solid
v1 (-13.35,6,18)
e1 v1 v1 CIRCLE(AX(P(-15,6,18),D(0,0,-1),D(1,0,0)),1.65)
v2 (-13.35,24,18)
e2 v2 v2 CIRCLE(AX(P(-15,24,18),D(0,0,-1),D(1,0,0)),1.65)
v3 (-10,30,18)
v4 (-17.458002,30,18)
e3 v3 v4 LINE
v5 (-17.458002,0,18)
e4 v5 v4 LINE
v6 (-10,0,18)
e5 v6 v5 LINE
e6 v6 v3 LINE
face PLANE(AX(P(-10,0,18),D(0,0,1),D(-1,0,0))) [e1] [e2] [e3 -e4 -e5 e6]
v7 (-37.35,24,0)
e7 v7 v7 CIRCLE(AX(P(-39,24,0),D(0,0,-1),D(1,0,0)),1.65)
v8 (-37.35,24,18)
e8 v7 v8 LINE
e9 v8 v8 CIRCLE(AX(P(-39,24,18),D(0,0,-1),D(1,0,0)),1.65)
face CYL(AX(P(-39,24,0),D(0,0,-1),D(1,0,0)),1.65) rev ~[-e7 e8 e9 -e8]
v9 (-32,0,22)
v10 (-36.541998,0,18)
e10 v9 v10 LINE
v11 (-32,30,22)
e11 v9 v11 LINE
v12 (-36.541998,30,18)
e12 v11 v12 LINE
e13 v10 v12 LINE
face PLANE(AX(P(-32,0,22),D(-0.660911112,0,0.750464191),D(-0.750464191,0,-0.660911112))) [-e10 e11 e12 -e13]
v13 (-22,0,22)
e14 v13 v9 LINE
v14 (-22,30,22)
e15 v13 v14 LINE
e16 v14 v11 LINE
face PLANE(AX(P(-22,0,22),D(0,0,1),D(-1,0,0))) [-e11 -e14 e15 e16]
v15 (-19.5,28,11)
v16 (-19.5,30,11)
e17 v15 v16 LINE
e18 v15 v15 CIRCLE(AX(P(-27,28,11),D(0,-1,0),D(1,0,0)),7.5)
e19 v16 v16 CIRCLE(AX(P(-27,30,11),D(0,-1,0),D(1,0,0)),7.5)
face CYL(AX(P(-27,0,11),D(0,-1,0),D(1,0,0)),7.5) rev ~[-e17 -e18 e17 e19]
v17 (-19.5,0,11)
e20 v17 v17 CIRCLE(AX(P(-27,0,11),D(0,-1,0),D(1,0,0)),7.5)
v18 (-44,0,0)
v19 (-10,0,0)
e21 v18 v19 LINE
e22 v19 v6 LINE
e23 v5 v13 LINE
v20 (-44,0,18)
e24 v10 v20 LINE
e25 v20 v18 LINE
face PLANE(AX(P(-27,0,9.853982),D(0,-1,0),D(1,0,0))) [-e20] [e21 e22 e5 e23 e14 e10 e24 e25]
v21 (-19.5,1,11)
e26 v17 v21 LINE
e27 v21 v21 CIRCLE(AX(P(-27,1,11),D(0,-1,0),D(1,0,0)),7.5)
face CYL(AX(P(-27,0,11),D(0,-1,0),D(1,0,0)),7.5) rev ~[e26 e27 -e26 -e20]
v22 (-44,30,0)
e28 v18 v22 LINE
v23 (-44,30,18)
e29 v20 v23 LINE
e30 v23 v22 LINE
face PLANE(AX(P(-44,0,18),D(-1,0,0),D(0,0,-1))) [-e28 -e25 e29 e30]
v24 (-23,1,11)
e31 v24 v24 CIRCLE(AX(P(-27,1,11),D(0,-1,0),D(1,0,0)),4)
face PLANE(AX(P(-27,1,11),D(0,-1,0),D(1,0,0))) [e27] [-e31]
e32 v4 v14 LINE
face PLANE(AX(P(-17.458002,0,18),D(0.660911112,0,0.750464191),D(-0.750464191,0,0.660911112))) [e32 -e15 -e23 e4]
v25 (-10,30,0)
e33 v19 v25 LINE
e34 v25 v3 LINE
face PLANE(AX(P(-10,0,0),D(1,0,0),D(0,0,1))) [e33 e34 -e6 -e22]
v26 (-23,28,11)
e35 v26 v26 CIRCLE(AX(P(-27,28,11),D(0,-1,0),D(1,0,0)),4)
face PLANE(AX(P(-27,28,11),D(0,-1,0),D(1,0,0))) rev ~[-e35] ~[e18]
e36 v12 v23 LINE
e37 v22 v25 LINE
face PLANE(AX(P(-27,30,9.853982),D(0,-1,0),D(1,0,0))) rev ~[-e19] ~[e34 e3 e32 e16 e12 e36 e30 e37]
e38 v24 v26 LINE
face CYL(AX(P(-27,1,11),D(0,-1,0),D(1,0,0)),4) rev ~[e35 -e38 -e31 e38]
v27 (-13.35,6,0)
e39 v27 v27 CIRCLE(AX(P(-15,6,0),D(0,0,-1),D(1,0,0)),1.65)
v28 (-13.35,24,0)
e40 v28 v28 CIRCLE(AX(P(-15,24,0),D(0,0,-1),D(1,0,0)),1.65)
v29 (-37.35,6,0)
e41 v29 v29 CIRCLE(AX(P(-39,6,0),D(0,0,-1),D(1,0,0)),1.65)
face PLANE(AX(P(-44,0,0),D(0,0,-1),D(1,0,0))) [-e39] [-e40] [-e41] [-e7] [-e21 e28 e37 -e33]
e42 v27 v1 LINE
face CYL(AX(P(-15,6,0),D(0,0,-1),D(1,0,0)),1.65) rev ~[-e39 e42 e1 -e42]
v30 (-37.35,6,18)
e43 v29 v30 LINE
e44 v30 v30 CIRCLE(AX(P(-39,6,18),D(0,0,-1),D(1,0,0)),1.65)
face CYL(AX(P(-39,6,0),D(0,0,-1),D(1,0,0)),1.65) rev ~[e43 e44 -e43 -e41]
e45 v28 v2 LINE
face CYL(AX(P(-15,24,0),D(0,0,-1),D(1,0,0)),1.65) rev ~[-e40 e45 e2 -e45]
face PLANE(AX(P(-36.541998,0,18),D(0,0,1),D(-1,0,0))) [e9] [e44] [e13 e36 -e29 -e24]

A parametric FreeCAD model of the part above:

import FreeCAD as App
import Part
import Sketcher
Q = App.Units.Quantity


def add_polygon(sketch, points):
    """Adds a closed chain of lines whose ends are joined by coincident constraints."""
    first, n = sketch.GeometryCount, len(points)
    for a, b in zip(points, points[1:] + points[:1]):
        sketch.addGeometry(Part.LineSegment(App.Vector(*a, 0), App.Vector(*b, 0)), False)
    for i in range(n):
        sketch.addConstraint(Sketcher.Constraint("Coincident", first + i, 2, first + (i + 1) % n, 1))

doc = App.newDocument("Part")
body = doc.addObject("PartDesign::Body", "Body")

sketch1 = body.newObject("Sketcher::SketchObject", "Sketch")
sketch1.AttachmentSupport = (doc.getObject("XZ_Plane"), [""])
sketch1.MapMode = "FlatFace"
add_polygon(sketch1, [(-44, 18), (-44, 0), (-10, 0), (-10, 18), (-17, 18), (-22, 22), (-32, 22), (-37, 18)])
sketch1.addGeometry(Part.Circle(App.Vector(-27, 11, 0), App.Vector(0, 0, 1), 8), False)
sketch1.addConstraint([
    Sketcher.Constraint("Vertical", 0),
    Sketcher.Constraint("Horizontal", 1),
    Sketcher.Constraint("Vertical", 2),
    Sketcher.Constraint("Horizontal", 3),
    Sketcher.Constraint("Horizontal", 5),
    Sketcher.Constraint("Horizontal", 7),
    Sketcher.Constraint("PointOnObject", 0, 2, -1),
    Sketcher.Constraint("Horizontal", 3, 2, 6, 2),
    Sketcher.Constraint("Equal", 3, 7),
    Sketcher.Constraint("Equal", 4, 6),
    Sketcher.Constraint("Diameter", 8, Q("15 mm")),
    Sketcher.Constraint("DistanceX", 1, 1, 1, 2, Q("34 mm")),
    Sketcher.Constraint("DistanceX", 5, 2, 5, 1, Q("10 mm")),
    Sketcher.Constraint("DistanceY", 0, 2, 0, 1, Q("18 mm")),
    Sketcher.Constraint("DistanceX", 8, 3, -1, 1, Q("27 mm")),
    Sketcher.Constraint("DistanceY", -1, 1, 8, 3, Q("11 mm")),
    Sketcher.Constraint("DistanceX", 0, 2, -1, 1, Q("44 mm")),
    Sketcher.Constraint("DistanceY", -1, 1, 4, 2, Q("22 mm")),
    Sketcher.Constraint("Distance", 4, Q("6.052251 mm")),
])
pad1 = body.newObject("PartDesign::Pad", "Pad")
pad1.Profile = sketch1
pad1.Length = 30
pad1.Reversed = True

sketch2 = body.newObject("Sketcher::SketchObject", "Sketch001")
sketch2.AttachmentSupport = (doc.getObject("XZ_Plane"), [""])
sketch2.MapMode = "FlatFace"
sketch2.AttachmentOffset = App.Placement(App.Vector(0, 0, -1), App.Rotation())
sketch2.addGeometry([
    Part.Circle(App.Vector(-27, 11, 0), App.Vector(0, 0, 1), 7.5),
    Part.Circle(App.Vector(-27, 11, 0), App.Vector(0, 0, 1), 4),
], False)
sketch2.addConstraint([
    Sketcher.Constraint("Coincident", 1, 3, 0, 3),
    Sketcher.Constraint("Diameter", 0, Q("15 mm")),
    Sketcher.Constraint("Diameter", 1, Q("8 mm")),
    Sketcher.Constraint("DistanceX", 0, 3, -1, 1, Q("27 mm")),
    Sketcher.Constraint("DistanceY", -1, 1, 0, 3, Q("11 mm")),
])
pad2 = body.newObject("PartDesign::Pad", "Pad001")
pad2.Profile = sketch2
pad2.Length = 27
pad2.Reversed = True

sketch3 = body.newObject("Sketcher::SketchObject", "Sketch002")
sketch3.AttachmentSupport = (doc.getObject("XY_Plane"), [""])
sketch3.MapMode = "FlatFace"
sketch3.addGeometry([
    Part.Circle(App.Vector(-39, 6, 0), App.Vector(0, 0, 1), 1.6),
    Part.Circle(App.Vector(-15, 6, 0), App.Vector(0, 0, 1), 1.6),
    Part.Circle(App.Vector(-15, 24, 0), App.Vector(0, 0, 1), 1.6),
    Part.Circle(App.Vector(-39, 24, 0), App.Vector(0, 0, 1), 1.6),
], False)
sketch3.addConstraint([
    Sketcher.Constraint("Equal", 0, 1),
    Sketcher.Constraint("Equal", 1, 2),
    Sketcher.Constraint("Equal", 2, 3),
    Sketcher.Constraint("Horizontal", 0, 3, 1, 3),
    Sketcher.Constraint("Horizontal", 2, 3, 3, 3),
    Sketcher.Constraint("Vertical", 1, 3, 2, 3),
    Sketcher.Constraint("Vertical", 0, 3, 3, 3),
    Sketcher.Constraint("Diameter", 0, Q("3.3 mm")),
    Sketcher.Constraint("DistanceX", 0, 3, -1, 1, Q("39 mm")),
    Sketcher.Constraint("DistanceY", -1, 1, 0, 3, Q("6 mm")),
    Sketcher.Constraint("DistanceX", 1, 3, -1, 1, Q("15 mm")),
    Sketcher.Constraint("DistanceY", -1, 1, 2, 3, Q("24 mm")),
])
pocket1 = body.newObject("PartDesign::Pocket", "Pocket")
pocket1.Profile = sketch3
pocket1.Length = 25
pocket1.Reversed = True

doc.recompute()
